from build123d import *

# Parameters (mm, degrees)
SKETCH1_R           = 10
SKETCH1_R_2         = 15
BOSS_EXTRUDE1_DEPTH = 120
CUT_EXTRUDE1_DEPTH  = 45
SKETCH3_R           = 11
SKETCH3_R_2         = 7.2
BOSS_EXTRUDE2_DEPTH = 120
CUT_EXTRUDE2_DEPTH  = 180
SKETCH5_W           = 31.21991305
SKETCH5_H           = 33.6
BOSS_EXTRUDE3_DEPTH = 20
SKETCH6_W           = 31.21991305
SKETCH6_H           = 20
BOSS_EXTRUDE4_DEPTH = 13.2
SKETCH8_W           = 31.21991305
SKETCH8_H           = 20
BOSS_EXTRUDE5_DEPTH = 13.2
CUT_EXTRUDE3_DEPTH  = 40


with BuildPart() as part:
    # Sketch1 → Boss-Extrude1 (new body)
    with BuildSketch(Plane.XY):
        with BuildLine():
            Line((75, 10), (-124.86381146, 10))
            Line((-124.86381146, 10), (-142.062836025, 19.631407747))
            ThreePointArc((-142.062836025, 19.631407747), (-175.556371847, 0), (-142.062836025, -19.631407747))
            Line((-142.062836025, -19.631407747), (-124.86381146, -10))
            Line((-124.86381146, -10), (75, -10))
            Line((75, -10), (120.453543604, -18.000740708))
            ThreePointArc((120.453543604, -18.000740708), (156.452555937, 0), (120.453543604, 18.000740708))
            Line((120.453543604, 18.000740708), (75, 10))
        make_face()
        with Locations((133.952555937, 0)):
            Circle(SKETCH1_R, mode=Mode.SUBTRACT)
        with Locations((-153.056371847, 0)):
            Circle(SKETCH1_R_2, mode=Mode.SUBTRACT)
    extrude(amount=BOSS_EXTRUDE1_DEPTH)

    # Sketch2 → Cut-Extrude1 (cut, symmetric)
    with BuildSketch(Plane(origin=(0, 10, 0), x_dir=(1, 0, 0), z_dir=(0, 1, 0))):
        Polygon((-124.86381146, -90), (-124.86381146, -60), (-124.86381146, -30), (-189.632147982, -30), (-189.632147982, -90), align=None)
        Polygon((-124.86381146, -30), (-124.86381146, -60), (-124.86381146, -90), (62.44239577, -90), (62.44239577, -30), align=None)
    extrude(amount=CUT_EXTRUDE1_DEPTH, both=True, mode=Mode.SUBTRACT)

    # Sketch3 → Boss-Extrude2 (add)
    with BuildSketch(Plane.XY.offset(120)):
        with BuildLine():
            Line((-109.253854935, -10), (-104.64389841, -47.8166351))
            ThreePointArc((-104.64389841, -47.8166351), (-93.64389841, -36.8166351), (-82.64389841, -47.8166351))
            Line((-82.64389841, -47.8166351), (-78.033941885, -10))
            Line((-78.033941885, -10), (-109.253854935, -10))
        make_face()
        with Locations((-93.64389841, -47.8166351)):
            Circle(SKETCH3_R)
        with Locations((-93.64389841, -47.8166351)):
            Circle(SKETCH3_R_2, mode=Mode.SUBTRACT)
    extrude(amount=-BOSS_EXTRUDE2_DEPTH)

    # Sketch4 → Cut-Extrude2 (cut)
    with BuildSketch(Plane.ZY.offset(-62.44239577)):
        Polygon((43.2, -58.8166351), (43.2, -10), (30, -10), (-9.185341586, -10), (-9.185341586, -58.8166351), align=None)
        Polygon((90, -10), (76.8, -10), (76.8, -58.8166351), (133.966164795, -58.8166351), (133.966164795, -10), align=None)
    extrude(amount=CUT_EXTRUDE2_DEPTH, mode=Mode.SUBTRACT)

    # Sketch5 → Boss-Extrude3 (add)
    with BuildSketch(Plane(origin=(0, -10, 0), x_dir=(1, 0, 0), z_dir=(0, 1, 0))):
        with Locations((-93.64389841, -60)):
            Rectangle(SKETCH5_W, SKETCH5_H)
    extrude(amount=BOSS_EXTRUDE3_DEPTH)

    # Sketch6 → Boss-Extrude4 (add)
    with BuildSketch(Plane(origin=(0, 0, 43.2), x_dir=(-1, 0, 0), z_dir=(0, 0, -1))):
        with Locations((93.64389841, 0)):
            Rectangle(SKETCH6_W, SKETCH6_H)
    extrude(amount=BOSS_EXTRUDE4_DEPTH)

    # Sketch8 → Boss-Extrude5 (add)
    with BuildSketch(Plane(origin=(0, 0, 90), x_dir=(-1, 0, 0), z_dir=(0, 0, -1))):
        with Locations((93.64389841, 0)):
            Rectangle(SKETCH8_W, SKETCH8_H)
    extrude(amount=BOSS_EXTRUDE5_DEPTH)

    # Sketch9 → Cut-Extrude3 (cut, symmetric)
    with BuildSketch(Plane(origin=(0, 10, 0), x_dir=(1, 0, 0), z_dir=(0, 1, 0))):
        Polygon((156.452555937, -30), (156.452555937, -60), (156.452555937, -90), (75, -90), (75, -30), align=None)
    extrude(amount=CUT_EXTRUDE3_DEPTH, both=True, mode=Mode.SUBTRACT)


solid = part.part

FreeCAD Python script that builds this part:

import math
import FreeCAD as App
import Part
import Sketcher


def add_polygon(sketch, points):
    """Adds a closed chain of lines whose ends are joined by coincident constraints."""
    first, n = sketch.GeometryCount, len(points)
    for a, b in zip(points, points[1:] + points[:1]):
        sketch.addGeometry(Part.LineSegment(App.Vector(*a, 0), App.Vector(*b, 0)), False)
    for i in range(n):
        sketch.addConstraint(Sketcher.Constraint("Coincident", first + i, 2, first + (i + 1) % n, 1))

doc = App.newDocument("Part")
params = doc.addObject("Spreadsheet::Sheet", "Params")
for row, (alias, value) in enumerate([
    ("sketch1_diameter", "30 mm"),
    ("sketch1_diameter2", "20 mm"),
    ("sketch1_radius", "22.5 mm"),
    ("pad1_length", "120 mm"),
    ("sketch2_height", "60 mm"),
    ("pocket1_length", "90 mm"),
    ("sketch3_radius", "11 mm"),
    ("sketch3_diameter", "14.4 mm"),
    ("pad2_length", "120 mm"),
    ("pocket2_length", "180 mm"),
    ("sketch5_height", "33.6 mm"),
    ("pad3_length", "20 mm"),
    ("sketch6_height", "20 mm"),
    ("pad4_length", "13.2 mm"),
    ("sketch7_height", "20 mm"),
    ("pad5_length", "13.2 mm"),
    ("sketch8_height", "60 mm"),
    ("pocket3_length", "80 mm"),
], start=1):
    params.set(f"A{row}", alias)
    params.set(f"B{row}", "=" + value)
    params.setAlias(f"B{row}", alias)

body = doc.addObject("PartDesign::Body", "Body")
body.AllowCompound = True

sketch1 = doc.addObject("Sketcher::SketchObject", "Sketch")
body.addObject(sketch1)
sketch1.AttachmentSupport = (doc.XY_Plane, [""])
sketch1.MapMode = "FlatFace"
sketch1.addGeometry(Part.LineSegment(App.Vector(75, 10, 0), App.Vector(-125, 10, 0)), False)
sketch1.addGeometry(Part.LineSegment(App.Vector(-125, 10, 0), App.Vector(-142, 20, 0)), False)
sketch1.addGeometry(Part.ArcOfCircle(Part.Circle(App.Vector(-153, 0, 0), App.Vector(0, 0, 1), 22), math.radians(61), math.radians(299)), False)
sketch1.addGeometry(Part.LineSegment(App.Vector(-142, -20, 0), App.Vector(-125, -10, 0)), False)
sketch1.addGeometry(Part.LineSegment(App.Vector(-125, -10, 0), App.Vector(75, -10, 0)), False)
sketch1.addGeometry(Part.LineSegment(App.Vector(75, -10, 0), App.Vector(120, -18, 0)), False)
sketch1.addGeometry(Part.ArcOfCircle(Part.Circle(App.Vector(134, 0, 0), App.Vector(0, 0, 1), 22), math.radians(-127), math.radians(127)), False)
sketch1.addGeometry(Part.LineSegment(App.Vector(120, 18, 0), App.Vector(75, 10, 0)), False)
sketch1.addGeometry(Part.Circle(App.Vector(-153, 0, 0), App.Vector(0, 0, 1), 15), False)
sketch1.addGeometry(Part.Circle(App.Vector(134, 0, 0), App.Vector(0, 0, 1), 10), False)
sketch1.addConstraint(Sketcher.Constraint("Coincident", 0, 2, 1, 1))
sketch1.addConstraint(Sketcher.Constraint("Tangent", 1, 2, 2, 1))
sketch1.addConstraint(Sketcher.Constraint("Tangent", 2, 2, 3, 1))
sketch1.addConstraint(Sketcher.Constraint("Coincident", 3, 2, 4, 1))
sketch1.addConstraint(Sketcher.Constraint("Coincident", 4, 2, 5, 1))
sketch1.addConstraint(Sketcher.Constraint("Coincident", 5, 2, 6, 1))
sketch1.addConstraint(Sketcher.Constraint("Coincident", 6, 2, 7, 1))
sketch1.addConstraint(Sketcher.Constraint("Coincident", 7, 2, 0, 1))
sketch1.addConstraint(Sketcher.Constraint("Horizontal", 0))
sketch1.addConstraint(Sketcher.Constraint("Horizontal", 4))
sketch1.addConstraint(Sketcher.Constraint("Coincident", 8, 3, 2, 3))
sketch1.addConstraint(Sketcher.Constraint("Coincident", 9, 3, 6, 3))
sketch1.addConstraint(Sketcher.Constraint("Equal", 2, 6))
sketch1.addConstraint(Sketcher.Constraint("Symmetric", 1, 2, 2, 2, -1))
sketch1.addConstraint(Sketcher.Constraint("Symmetric", 5, 2, 6, 2, -1))
sketch1.addConstraint(Sketcher.Constraint("Symmetric", 4, 2, 7, 2, -1))
sketch1.addConstraint(Sketcher.Constraint("Diameter", 8, 30.0))
sketch1.addConstraint(Sketcher.Constraint("Diameter", 9, 20.0))
sketch1.addConstraint(Sketcher.Constraint("Radius", 2, 22.5))
sketch1.addConstraint(Sketcher.Constraint("DistanceY", -1, 1, 0, 2, 10.0))
sketch1.addConstraint(Sketcher.Constraint("DistanceX", -1, 1, 4, 2, 75.0))
sketch1.addConstraint(Sketcher.Constraint("DistanceX", 0, 2, 0, 1, 199.863811))
sketch1.addConstraint(Sketcher.Constraint("Distance", 1, 19.712191))
sketch1.addConstraint(Sketcher.Constraint("Distance", 5, 46.152318))
sketch1.addConstraint(Sketcher.Constraint("DistanceY", 5, 2, -1, 1, 18.000741))
sketch1.setExpression("Constraints[16]", "Params.sketch1_diameter")
sketch1.setExpression("Constraints[17]", "Params.sketch1_diameter2")
sketch1.setExpression("Constraints[18]", "Params.sketch1_radius")
pad1 = doc.addObject("PartDesign::Pad", "Pad")
body.addObject(pad1)
pad1.Profile = sketch1
pad1.setExpression("Length", "Params.pad1_length")

sketch2 = doc.addObject("Sketcher::SketchObject", "Sketch001")
body.addObject(sketch2)
sketch2.AttachmentSupport = (doc.XZ_Plane, [""])
sketch2.MapMode = "FlatFace"
sketch2.AttachmentOffset = App.Placement(App.Vector(0, 0, -10), App.Rotation())
add_polygon(sketch2, [(-190, 30), (-190, 90), (62, 90), (62, 30)])
sketch2.addConstraint(Sketcher.Constraint("Vertical", 0))
sketch2.addConstraint(Sketcher.Constraint("Horizontal", 1))
sketch2.addConstraint(Sketcher.Constraint("Vertical", 2))
sketch2.addConstraint(Sketcher.Constraint("Horizontal", 3))
sketch2.addConstraint(Sketcher.Constraint("DistanceY", 0, 1, 0, 2, 60.0))
sketch2.addConstraint(Sketcher.Constraint("DistanceY", -1, 1, 0, 2, 90.0))
sketch2.addConstraint(Sketcher.Constraint("DistanceX", 1, 1, 1, 2, 252.074544))
sketch2.addConstraint(Sketcher.Constraint("DistanceX", 0, 2, -1, 1, 189.632148))
sketch2.setExpression("Constraints[8]", "Params.sketch2_height")
pocket1 = doc.addObject("PartDesign::Pocket", "Pocket")
body.addObject(pocket1)
pocket1.Profile = sketch2
pocket1.setExpression("Length", "Params.pocket1_length")
pocket1.Midplane = True

sketch3 = doc.addObject("Sketcher::SketchObject", "Sketch002")
body.addObject(sketch3)
sketch3.AttachmentSupport = (doc.XY_Plane, [""])
sketch3.MapMode = "FlatFace"
sketch3.AttachmentOffset = App.Placement(App.Vector(0, 0, 120), App.Rotation())
sketch3.addGeometry(Part.LineSegment(App.Vector(-109, -10, 0), App.Vector(-105, -48, 0)), False)
sketch3.addGeometry(Part.ArcOfCircle(Part.Circle(App.Vector(-94, -48, 0), App.Vector(0, 0, 1), 11), math.radians(180), math.radians(360)), False)
sketch3.addGeometry(Part.LineSegment(App.Vector(-83, -48, 0), App.Vector(-78, -10, 0)), False)
sketch3.addGeometry(Part.LineSegment(App.Vector(-78, -10, 0), App.Vector(-109, -10, 0)), False)
sketch3.addGeometry(Part.Circle(App.Vector(-94, -48, 0), App.Vector(0, 0, 1), 7), False)
sketch3.addConstraint(Sketcher.Constraint("Coincident", 0, 2, 1, 1))
sketch3.addConstraint(Sketcher.Constraint("Coincident", 1, 2, 2, 1))
sketch3.addConstraint(Sketcher.Constraint("Coincident", 2, 2, 3, 1))
sketch3.addConstraint(Sketcher.Constraint("Coincident", 3, 2, 0, 1))
sketch3.addConstraint(Sketcher.Constraint("Horizontal", 3))
sketch3.addConstraint(Sketcher.Constraint("Coincident", 4, 3, 1, 3))
sketch3.addConstraint(Sketcher.Constraint("Horizontal", 4, 3, 0, 2))
sketch3.addConstraint(Sketcher.Constraint("Horizontal", 0, 2, 1, 2))
sketch3.addConstraint(Sketcher.Constraint("Equal", 0, 2))
sketch3.addConstraint(Sketcher.Constraint("Radius", 1, 11.0))
sketch3.addConstraint(Sketcher.Constraint("Diameter", 4, 14.4))
sketch3.addConstraint(Sketcher.Constraint("DistanceY", 2, 2, -1, 1, 10.0))
sketch3.addConstraint(Sketcher.Constraint("DistanceX", 1, 3, -1, 1, 93.643898))
sketch3.addConstraint(Sketcher.Constraint("DistanceX", 3, 2, 3, 1, 31.219913))
sketch3.addConstraint(Sketcher.Constraint("Distance", 0, 38.096582))
sketch3.setExpression("Constraints[9]", "Params.sketch3_radius")
sketch3.setExpression("Constraints[10]", "Params.sketch3_diameter")
pad2 = doc.addObject("PartDesign::Pad", "Pad001")
body.addObject(pad2)
pad2.Profile = sketch3
pad2.setExpression("Length", "Params.pad2_length")
pad2.Reversed = True

sketch4 = doc.addObject("Sketcher::SketchObject", "Sketch003")
body.addObject(sketch4)
sketch4.AttachmentSupport = (doc.YZ_Plane, [""])
sketch4.MapMode = "FlatFace"
sketch4.AttachmentOffset = App.Placement(App.Vector(0, 0, 62.442396), App.Rotation())
add_polygon(sketch4, [(-59, 43), (-10, 43), (-10, -9), (-59, -9)])
add_polygon(sketch4, [(-10, 77), (-59, 77), (-59, 134), (-10, 134)])
sketch4.addConstraint(Sketcher.Constraint("Horizontal", 0))
sketch4.addConstraint(Sketcher.Constraint("Vertical", 1))
sketch4.addConstraint(Sketcher.Constraint("Horizontal", 2))
sketch4.addConstraint(Sketcher.Constraint("Vertical", 3))
sketch4.addConstraint(Sketcher.Constraint("Horizontal", 4))
sketch4.addConstraint(Sketcher.Constraint("Vertical", 5))
sketch4.addConstraint(Sketcher.Constraint("Horizontal", 6))
sketch4.addConstraint(Sketcher.Constraint("Vertical", 7))
sketch4.addConstraint(Sketcher.Constraint("Vertical", 3, 2, 4, 2))
sketch4.addConstraint(Sketcher.Constraint("Vertical", 1, 2, 6, 2))
sketch4.addConstraint(Sketcher.Constraint("DistanceX", 0, 2, -1, 1, 10.0))
sketch4.addConstraint(Sketcher.Constraint("DistanceY", -1, 1, 0, 2, 43.2))
sketch4.addConstraint(Sketcher.Constraint("DistanceY", -1, 1, 4, 2, 76.8))
sketch4.addConstraint(Sketcher.Constraint("DistanceY", 1, 2, 1, 1, 52.385342))
sketch4.addConstraint(Sketcher.Constraint("DistanceX", 0, 1, 0, 2, 48.816635))
sketch4.addConstraint(Sketcher.Constraint("DistanceY", 5, 1, 5, 2, 57.166165))
pocket2 = doc.addObject("PartDesign::Pocket", "Pocket001")
body.addObject(pocket2)
pocket2.Profile = sketch4
pocket2.setExpression("Length", "Params.pocket2_length")

sketch5 = doc.addObject("Sketcher::SketchObject", "Sketch004")
body.addObject(sketch5)
sketch5.AttachmentSupport = (doc.XZ_Plane, [""])
sketch5.MapMode = "FlatFace"
sketch5.AttachmentOffset = App.Placement(App.Vector(0, 0, 10), App.Rotation())
add_polygon(sketch5, [(-109, 43), (-109, 77), (-78, 77), (-78, 43)])
sketch5.addConstraint(Sketcher.Constraint("Vertical", 0))
sketch5.addConstraint(Sketcher.Constraint("Horizontal", 1))
sketch5.addConstraint(Sketcher.Constraint("Vertical", 2))
sketch5.addConstraint(Sketcher.Constraint("Horizontal", 3))
sketch5.addConstraint(Sketcher.Constraint("DistanceY", 0, 1, 0, 2, 33.6))
sketch5.addConstraint(Sketcher.Constraint("DistanceY", -1, 1, 0, 2, 76.8))
sketch5.addConstraint(Sketcher.Constraint("DistanceX", 1, 1, 1, 2, 31.219913))
sketch5.addConstraint(Sketcher.Constraint("DistanceX", 1, 2, -1, 1, 78.033942))
sketch5.setExpression("Constraints[8]", "Params.sketch5_height")
pad3 = doc.addObject("PartDesign::Pad", "Pad002")
body.addObject(pad3)
pad3.Profile = sketch5
pad3.setExpression("Length", "Params.pad3_length")
pad3.Reversed = True

sketch6 = doc.addObject("Sketcher::SketchObject", "Sketch005")
body.addObject(sketch6)
sketch6.AttachmentSupport = (doc.XY_Plane, [""])
sketch6.MapMode = "FlatFace"
sketch6.AttachmentOffset = App.Placement(App.Vector(0, 0, 43.2), App.Rotation())
add_polygon(sketch6, [(-78, 10), (-78, -10), (-109, -10), (-109, 10)])
sketch6.addConstraint(Sketcher.Constraint("Vertical", 0))
sketch6.addConstraint(Sketcher.Constraint("Horizontal", 1))
sketch6.addConstraint(Sketcher.Constraint("Vertical", 2))
sketch6.addConstraint(Sketcher.Constraint("Horizontal", 3))
sketch6.addConstraint(Sketcher.Constraint("DistanceY", 0, 2, 0, 1, 20.0))
sketch6.addConstraint(Sketcher.Constraint("DistanceY", 0, 2, -1, 1, 10.0))
sketch6.addConstraint(Sketcher.Constraint("DistanceX", 1, 2, 1, 1, 31.219913))
sketch6.addConstraint(Sketcher.Constraint("DistanceX", 0, 2, -1, 1, 78.033942))
sketch6.setExpression("Constraints[8]", "Params.sketch6_height")
pad4 = doc.addObject("PartDesign::Pad", "Pad003")
body.addObject(pad4)
pad4.Profile = sketch6
pad4.setExpression("Length", "Params.pad4_length")
pad4.Reversed = True

sketch7 = doc.addObject("Sketcher::SketchObject", "Sketch006")
body.addObject(sketch7)
sketch7.AttachmentSupport = (doc.XY_Plane, [""])
sketch7.MapMode = "FlatFace"
sketch7.AttachmentOffset = App.Placement(App.Vector(0, 0, 90), App.Rotation())
add_polygon(sketch7, [(-78, 10), (-78, -10), (-109, -10), (-109, 10)])
sketch7.addConstraint(Sketcher.Constraint("Vertical", 0))
sketch7.addConstraint(Sketcher.Constraint("Horizontal", 1))
sketch7.addConstraint(Sketcher.Constraint("Vertical", 2))
sketch7.addConstraint(Sketcher.Constraint("Horizontal", 3))
sketch7.addConstraint(Sketcher.Constraint("DistanceY", 0, 2, 0, 1, 20.0))
sketch7.addConstraint(Sketcher.Constraint("DistanceY", 0, 2, -1, 1, 10.0))
sketch7.addConstraint(Sketcher.Constraint("DistanceX", 1, 2, 1, 1, 31.219913))
sketch7.addConstraint(Sketcher.Constraint("DistanceX", 0, 2, -1, 1, 78.033942))
sketch7.setExpression("Constraints[8]", "Params.sketch7_height")
pad5 = doc.addObject("PartDesign::Pad", "Pad004")
body.addObject(pad5)
pad5.Profile = sketch7
pad5.setExpression("Length", "Params.pad5_length")
pad5.Reversed = True

sketch8 = doc.addObject("Sketcher::SketchObject", "Sketch007")
body.addObject(sketch8)
sketch8.AttachmentSupport = (doc.XZ_Plane, [""])
sketch8.MapMode = "FlatFace"
sketch8.AttachmentOffset = App.Placement(App.Vector(0, 0, -10), App.Rotation())
add_polygon(sketch8, [(156, 90), (156, 30), (75, 30), (75, 90)])
sketch8.addConstraint(Sketcher.Constraint("Vertical", 0))
sketch8.addConstraint(Sketcher.Constraint("Horizontal", 1))
sketch8.addConstraint(Sketcher.Constraint("Vertical", 2))
sketch8.addConstraint(Sketcher.Constraint("Horizontal", 3))
sketch8.addConstraint(Sketcher.Constraint("DistanceY", 0, 2, 0, 1, 60.0))
sketch8.addConstraint(Sketcher.Constraint("DistanceY", -1, 1, 0, 2, 30.0))
sketch8.addConstraint(Sketcher.Constraint("DistanceX", -1, 1, 1, 2, 75.0))
sketch8.addConstraint(Sketcher.Constraint("DistanceX", 1, 2, 1, 1, 81.452556))
sketch8.setExpression("Constraints[8]", "Params.sketch8_height")
pocket3 = doc.addObject("PartDesign::Pocket", "Pocket002")
body.addObject(pocket3)
pocket3.Profile = sketch8
pocket3.setExpression("Length", "Params.pocket3_length")
pocket3.Midplane = True

doc.recompute()
